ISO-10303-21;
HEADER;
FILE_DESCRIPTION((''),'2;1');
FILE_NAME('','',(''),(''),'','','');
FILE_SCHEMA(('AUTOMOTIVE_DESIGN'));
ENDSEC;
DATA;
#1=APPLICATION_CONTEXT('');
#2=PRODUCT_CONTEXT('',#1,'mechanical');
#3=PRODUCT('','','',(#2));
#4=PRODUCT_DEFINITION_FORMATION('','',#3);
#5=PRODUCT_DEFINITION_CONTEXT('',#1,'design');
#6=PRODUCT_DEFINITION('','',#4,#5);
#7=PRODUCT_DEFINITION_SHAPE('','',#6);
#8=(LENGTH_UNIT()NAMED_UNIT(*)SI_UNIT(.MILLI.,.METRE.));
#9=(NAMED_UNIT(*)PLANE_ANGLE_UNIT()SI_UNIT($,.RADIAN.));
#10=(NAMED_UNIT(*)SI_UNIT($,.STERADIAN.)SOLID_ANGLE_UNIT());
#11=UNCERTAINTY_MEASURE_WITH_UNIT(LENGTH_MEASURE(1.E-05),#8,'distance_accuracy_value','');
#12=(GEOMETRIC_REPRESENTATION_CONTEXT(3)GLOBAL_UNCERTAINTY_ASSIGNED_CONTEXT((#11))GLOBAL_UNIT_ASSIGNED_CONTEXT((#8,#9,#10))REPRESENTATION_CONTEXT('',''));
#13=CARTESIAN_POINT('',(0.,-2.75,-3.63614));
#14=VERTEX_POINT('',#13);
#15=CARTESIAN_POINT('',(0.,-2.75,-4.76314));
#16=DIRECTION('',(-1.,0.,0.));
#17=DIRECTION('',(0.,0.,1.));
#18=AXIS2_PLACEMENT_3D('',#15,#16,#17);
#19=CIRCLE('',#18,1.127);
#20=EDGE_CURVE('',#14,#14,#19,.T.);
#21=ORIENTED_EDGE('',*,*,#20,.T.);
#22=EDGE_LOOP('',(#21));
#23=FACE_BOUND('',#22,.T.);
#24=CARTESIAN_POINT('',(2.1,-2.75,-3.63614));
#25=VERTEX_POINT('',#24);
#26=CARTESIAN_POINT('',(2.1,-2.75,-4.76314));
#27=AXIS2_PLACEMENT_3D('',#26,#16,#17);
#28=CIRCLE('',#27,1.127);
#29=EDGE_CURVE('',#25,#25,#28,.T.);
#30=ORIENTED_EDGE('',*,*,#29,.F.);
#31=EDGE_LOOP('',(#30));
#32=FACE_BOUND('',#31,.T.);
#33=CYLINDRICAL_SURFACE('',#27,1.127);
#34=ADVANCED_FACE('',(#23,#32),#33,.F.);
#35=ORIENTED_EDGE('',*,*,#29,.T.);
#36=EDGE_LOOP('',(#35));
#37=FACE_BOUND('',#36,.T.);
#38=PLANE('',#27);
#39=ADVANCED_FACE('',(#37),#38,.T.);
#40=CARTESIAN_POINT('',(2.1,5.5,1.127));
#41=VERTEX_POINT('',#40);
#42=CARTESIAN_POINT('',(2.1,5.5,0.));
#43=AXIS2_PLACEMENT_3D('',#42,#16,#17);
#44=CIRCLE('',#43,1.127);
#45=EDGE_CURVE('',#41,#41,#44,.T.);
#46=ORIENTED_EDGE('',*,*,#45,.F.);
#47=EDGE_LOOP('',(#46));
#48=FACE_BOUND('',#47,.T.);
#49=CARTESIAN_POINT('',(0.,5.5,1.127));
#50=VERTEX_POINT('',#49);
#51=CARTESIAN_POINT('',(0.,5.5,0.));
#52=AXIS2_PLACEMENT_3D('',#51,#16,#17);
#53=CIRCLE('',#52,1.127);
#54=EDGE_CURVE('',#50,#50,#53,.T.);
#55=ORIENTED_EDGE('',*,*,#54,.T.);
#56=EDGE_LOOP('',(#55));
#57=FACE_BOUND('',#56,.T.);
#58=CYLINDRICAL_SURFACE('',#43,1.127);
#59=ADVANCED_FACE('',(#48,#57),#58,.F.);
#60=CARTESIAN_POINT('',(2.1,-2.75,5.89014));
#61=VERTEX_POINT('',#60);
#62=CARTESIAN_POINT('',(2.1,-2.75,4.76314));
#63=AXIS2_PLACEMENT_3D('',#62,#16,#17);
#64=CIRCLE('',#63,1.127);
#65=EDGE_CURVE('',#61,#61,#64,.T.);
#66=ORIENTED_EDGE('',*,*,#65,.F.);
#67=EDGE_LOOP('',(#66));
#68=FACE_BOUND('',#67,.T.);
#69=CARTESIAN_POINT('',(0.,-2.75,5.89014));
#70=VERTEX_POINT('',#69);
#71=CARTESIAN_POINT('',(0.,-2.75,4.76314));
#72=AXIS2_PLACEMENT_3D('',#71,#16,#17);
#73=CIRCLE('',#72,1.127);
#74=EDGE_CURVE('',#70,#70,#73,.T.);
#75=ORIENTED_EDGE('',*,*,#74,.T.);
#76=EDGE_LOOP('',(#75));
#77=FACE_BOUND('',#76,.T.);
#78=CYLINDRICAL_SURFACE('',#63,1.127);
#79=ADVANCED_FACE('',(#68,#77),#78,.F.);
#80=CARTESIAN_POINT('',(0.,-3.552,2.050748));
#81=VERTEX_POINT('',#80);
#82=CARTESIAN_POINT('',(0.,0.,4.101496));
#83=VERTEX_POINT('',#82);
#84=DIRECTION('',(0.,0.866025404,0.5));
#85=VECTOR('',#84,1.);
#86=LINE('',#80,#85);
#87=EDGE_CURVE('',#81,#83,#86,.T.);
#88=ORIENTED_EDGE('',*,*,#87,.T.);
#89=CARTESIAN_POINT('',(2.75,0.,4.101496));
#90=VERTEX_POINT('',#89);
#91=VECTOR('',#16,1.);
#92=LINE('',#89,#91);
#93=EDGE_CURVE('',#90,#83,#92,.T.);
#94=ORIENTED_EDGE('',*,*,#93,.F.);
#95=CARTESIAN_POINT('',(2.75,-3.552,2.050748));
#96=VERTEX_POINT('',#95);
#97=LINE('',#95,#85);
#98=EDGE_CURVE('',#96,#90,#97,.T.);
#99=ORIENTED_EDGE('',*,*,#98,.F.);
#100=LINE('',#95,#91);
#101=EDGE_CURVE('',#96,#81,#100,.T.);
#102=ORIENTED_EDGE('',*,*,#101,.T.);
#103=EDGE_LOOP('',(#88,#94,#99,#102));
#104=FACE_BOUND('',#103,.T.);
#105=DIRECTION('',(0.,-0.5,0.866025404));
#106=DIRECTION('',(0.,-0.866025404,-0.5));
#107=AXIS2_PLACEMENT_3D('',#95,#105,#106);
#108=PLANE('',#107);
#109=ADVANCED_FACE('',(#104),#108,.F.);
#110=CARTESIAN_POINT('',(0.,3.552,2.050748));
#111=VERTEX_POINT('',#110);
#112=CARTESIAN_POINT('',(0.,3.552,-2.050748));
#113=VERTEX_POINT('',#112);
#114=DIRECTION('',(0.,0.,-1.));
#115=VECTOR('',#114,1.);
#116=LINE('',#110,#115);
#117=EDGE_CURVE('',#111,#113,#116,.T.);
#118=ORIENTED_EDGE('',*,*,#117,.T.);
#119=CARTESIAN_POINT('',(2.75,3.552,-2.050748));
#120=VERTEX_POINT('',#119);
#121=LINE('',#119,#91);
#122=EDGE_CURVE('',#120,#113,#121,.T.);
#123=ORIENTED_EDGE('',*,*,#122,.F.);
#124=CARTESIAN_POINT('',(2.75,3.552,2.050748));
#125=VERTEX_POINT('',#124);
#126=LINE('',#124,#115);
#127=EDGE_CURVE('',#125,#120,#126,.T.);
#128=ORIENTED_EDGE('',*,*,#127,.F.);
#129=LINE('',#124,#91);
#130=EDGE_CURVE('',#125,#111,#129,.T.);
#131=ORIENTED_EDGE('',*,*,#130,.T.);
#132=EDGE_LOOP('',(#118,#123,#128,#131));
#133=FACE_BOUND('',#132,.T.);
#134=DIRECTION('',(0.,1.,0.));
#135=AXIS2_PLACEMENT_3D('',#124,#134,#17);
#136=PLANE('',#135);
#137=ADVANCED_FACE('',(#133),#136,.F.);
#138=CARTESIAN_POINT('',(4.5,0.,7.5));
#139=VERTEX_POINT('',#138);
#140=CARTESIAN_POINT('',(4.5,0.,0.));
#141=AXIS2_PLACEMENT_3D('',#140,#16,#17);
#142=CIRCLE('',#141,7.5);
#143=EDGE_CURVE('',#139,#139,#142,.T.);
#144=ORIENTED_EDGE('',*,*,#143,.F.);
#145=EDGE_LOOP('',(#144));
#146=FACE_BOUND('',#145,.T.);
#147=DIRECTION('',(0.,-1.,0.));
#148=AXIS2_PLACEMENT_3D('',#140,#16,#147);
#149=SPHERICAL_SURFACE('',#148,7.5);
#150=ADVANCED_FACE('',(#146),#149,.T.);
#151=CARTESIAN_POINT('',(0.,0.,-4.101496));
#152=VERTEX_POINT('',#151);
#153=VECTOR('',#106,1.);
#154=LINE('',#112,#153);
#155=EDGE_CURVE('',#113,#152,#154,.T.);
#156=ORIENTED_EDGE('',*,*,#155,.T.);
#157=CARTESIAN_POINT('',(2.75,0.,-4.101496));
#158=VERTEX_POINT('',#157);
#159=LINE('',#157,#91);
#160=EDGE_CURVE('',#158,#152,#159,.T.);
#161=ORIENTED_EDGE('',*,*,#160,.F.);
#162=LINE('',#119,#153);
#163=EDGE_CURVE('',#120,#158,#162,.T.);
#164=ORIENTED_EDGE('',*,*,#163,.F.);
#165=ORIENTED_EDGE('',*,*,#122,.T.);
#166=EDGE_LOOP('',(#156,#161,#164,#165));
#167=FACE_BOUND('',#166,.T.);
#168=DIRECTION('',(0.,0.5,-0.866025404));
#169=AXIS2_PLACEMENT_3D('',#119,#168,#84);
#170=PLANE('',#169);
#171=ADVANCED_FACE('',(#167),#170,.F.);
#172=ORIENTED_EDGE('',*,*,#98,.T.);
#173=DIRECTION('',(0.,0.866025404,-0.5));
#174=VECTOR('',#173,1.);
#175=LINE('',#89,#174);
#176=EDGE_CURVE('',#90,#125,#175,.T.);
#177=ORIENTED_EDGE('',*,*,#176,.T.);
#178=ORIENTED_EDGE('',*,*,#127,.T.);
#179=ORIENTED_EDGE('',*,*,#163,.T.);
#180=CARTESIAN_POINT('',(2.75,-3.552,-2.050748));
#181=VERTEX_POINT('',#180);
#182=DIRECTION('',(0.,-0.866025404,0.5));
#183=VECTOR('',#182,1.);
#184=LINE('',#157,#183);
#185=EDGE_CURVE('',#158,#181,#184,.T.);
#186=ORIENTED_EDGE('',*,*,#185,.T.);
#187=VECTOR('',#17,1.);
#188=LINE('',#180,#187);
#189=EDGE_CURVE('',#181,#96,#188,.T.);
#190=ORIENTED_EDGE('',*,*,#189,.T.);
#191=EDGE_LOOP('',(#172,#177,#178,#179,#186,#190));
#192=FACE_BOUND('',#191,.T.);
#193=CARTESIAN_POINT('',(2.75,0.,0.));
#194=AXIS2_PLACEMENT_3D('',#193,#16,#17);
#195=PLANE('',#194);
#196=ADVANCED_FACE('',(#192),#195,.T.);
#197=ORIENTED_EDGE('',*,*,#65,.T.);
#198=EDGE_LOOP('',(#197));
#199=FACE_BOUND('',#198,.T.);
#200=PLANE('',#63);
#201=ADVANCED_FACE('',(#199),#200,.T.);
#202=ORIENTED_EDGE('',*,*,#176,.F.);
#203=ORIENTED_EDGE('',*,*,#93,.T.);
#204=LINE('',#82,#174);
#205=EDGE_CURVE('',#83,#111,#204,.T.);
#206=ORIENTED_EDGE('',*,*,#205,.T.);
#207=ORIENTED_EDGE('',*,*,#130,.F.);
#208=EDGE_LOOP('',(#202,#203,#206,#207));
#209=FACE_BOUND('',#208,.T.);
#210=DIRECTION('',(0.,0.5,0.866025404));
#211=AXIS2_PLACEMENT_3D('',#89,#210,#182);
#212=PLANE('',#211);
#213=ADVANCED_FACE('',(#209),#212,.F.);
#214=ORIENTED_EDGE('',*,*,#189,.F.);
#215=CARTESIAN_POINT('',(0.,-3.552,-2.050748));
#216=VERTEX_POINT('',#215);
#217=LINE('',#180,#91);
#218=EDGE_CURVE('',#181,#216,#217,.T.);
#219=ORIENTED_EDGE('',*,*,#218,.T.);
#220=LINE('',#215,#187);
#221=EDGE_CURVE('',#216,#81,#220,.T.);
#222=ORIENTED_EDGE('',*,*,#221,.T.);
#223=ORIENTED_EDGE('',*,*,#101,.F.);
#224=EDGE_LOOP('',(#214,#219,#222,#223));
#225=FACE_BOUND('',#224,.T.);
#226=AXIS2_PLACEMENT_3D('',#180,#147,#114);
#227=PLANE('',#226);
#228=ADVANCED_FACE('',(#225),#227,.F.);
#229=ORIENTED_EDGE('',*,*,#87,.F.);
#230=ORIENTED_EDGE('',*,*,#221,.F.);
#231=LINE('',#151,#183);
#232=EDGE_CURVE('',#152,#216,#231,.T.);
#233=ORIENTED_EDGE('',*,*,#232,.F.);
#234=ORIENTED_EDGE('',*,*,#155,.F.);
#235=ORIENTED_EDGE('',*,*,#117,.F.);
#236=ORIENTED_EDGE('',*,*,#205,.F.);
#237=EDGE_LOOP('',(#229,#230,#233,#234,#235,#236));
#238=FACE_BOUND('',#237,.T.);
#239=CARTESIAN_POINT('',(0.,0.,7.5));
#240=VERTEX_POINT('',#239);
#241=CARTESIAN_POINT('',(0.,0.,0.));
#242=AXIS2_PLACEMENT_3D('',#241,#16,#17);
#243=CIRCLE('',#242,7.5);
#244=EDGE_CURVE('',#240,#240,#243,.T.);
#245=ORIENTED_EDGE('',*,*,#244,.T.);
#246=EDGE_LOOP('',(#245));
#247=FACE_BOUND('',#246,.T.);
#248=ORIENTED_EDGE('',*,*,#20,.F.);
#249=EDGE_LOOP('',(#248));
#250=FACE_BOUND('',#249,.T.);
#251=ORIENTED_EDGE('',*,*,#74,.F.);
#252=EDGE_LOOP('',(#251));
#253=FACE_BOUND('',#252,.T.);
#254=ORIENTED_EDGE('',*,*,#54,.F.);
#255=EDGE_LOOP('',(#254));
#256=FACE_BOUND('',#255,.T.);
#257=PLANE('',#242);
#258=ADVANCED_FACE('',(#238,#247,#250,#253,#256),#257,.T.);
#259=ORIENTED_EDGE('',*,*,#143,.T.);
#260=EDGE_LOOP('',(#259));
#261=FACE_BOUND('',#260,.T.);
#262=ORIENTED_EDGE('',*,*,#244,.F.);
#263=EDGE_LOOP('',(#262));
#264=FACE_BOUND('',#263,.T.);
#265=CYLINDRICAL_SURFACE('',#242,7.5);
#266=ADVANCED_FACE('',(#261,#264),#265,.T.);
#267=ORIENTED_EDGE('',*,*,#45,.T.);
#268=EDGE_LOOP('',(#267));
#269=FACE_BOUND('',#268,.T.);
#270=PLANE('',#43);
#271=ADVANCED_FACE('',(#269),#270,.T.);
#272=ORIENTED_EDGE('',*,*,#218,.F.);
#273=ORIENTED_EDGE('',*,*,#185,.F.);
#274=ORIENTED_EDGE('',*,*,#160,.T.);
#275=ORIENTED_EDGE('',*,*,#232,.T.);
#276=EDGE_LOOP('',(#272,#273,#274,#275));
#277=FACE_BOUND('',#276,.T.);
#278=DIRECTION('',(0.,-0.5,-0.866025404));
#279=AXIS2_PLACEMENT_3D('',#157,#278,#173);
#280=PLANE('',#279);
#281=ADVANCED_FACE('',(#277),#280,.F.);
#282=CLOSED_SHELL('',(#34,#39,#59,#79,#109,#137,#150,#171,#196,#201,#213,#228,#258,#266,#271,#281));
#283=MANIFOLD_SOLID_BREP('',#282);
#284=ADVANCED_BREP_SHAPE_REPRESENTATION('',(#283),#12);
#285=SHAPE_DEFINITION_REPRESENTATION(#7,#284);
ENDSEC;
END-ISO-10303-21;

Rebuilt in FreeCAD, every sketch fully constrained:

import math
import FreeCAD as App
import Part
import Sketcher
from FreeCAD import Vector
Q = App.Units.Quantity

doc = App.newDocument("Part")
body = doc.addObject("PartDesign::Body", "Body")

sketch1 = doc.addObject("Sketcher::SketchObject", "Sketch")
body.addObject(sketch1)
sketch1.AttachmentSupport = (doc.XY_Plane, [""])
sketch1.MapMode = "FlatFace"
sketch1.addGeometry(Part.LineSegment(Vector(12, 0, 0), Vector(0, 0, 0)), False)
sketch1.addGeometry(Part.LineSegment(Vector(0, 0, 0), Vector(0, -7.5, 0)), False)
sketch1.addGeometry(Part.LineSegment(Vector(0, -7.5, 0), Vector(4.5, -7.5, 0)), False)
sketch1.addGeometry(Part.ArcOfCircle(Part.Circle(Vector(4.5, 0, 0), Vector(0, 0, 1), 7.5), math.radians(-90), math.radians(0)), False)
sketch1.addConstraint(Sketcher.Constraint("Coincident", 0, 2, 1, 1))
sketch1.addConstraint(Sketcher.Constraint("Coincident", 1, 2, 2, 1))
sketch1.addConstraint(Sketcher.Constraint("Tangent", 2, 2, 3, 1))
sketch1.addConstraint(Sketcher.Constraint("Coincident", 3, 2, 0, 1))
sketch1.addConstraint(Sketcher.Constraint("Horizontal", 0))
sketch1.addConstraint(Sketcher.Constraint("Vertical", 1))
sketch1.addConstraint(Sketcher.Constraint("Horizontal", 2))
sketch1.addConstraint(Sketcher.Constraint("Coincident", 0, 2, -1, 1))
sketch1.addConstraint(Sketcher.Constraint("PointOnObject", 3, 3, -1))
sketch1.addConstraint(Sketcher.Constraint("Radius", 3, 7.5))
sketch1.addConstraint(Sketcher.Constraint("DistanceX", 0, 2, 0, 1, 12.0))
revolution = doc.addObject("PartDesign::Revolution", "Revolution")
body.addObject(revolution)
revolution.Profile = sketch1
revolution.ReferenceAxis = (sketch1, ["H_Axis"])
revolution.Angle = 360

sketch2 = doc.addObject("Sketcher::SketchObject", "Sketch001")
body.addObject(sketch2)
sketch2.AttachmentSupport = (doc.YZ_Plane, [""])
sketch2.MapMode = "FlatFace"
sketch2.addGeometry(Part.LineSegment(Vector(3.552, 2.050748, 0), Vector(3.552, -2.050748, 0)), False)
sketch2.addGeometry(Part.LineSegment(Vector(3.552, -2.050748, 0), Vector(0, -4.101496, 0)), False)
sketch2.addGeometry(Part.LineSegment(Vector(0, -4.101496, 0), Vector(-3.552, -2.050748, 0)), False)
sketch2.addGeometry(Part.LineSegment(Vector(-3.552, -2.050748, 0), Vector(-3.552, 2.050748, 0)), False)
sketch2.addGeometry(Part.LineSegment(Vector(-3.552, 2.050748, 0), Vector(0, 4.101496, 0)), False)
sketch2.addGeometry(Part.LineSegment(Vector(0, 4.101496, 0), Vector(3.552, 2.050748, 0)), False)
sketch2.addConstraint(Sketcher.Constraint("Coincident", 0, 2, 1, 1))
sketch2.addConstraint(Sketcher.Constraint("Coincident", 1, 2, 2, 1))
sketch2.addConstraint(Sketcher.Constraint("Coincident", 2, 2, 3, 1))
sketch2.addConstraint(Sketcher.Constraint("Coincident", 3, 2, 4, 1))
sketch2.addConstraint(Sketcher.Constraint("Coincident", 4, 2, 5, 1))
sketch2.addConstraint(Sketcher.Constraint("Coincident", 5, 2, 0, 1))
sketch2.addConstraint(Sketcher.Constraint("Vertical", 0))
sketch2.addConstraint(Sketcher.Constraint("Vertical", 3))
sketch2.addConstraint(Sketcher.Constraint("Symmetric", 0, 2, 3, 2, -1, 1))
sketch2.addConstraint(Sketcher.Constraint("Symmetric", 1, 2, 4, 2, -1, 1))
sketch2.addConstraint(Sketcher.Constraint("PointOnObject", 1, 2, -2))
sketch2.addConstraint(Sketcher.Constraint("Parallel", 2, 5))
sketch2.addConstraint(Sketcher.Constraint("Horizontal", 0, 2, 2, 2))
sketch2.addConstraint(Sketcher.Constraint("Angle", 1, Q("-150 deg")))
sketch2.addConstraint(Sketcher.Constraint("DistanceX", -1, 1, 0, 2, 3.552))
sketch2.addConstraint(Sketcher.Constraint("DistanceY", 0, 2, 0, 1, 4.101496))
pocket1 = doc.addObject("PartDesign::Pocket", "Pocket")
body.addObject(pocket1)
pocket1.Profile = sketch2
pocket1.Length = 2.75
pocket1.Reversed = True

sketch3 = doc.addObject("Sketcher::SketchObject", "Sketch002")
body.addObject(sketch3)
sketch3.AttachmentSupport = (doc.YZ_Plane, [""])
sketch3.MapMode = "FlatFace"
sketch3.addGeometry(Part.Circle(Vector(-2.75, -4.76314, 0), Vector(0, 0, 1), 1.127), False)
sketch3.addGeometry(Part.Circle(Vector(5.5, 0, 0), Vector(0, 0, 1), 1.127), False)
sketch3.addGeometry(Part.Circle(Vector(-2.75, 4.76314, 0), Vector(0, 0, 1), 1.127), False)
sketch3.addConstraint(Sketcher.Constraint("Equal", 0, 1))
sketch3.addConstraint(Sketcher.Constraint("Equal", 1, 2))
sketch3.addConstraint(Sketcher.Constraint("Symmetric", 0, 3, 2, 3, -1))
sketch3.addConstraint(Sketcher.Constraint("PointOnObject", 1, 3, -1))
sketch3.addConstraint(Sketcher.Constraint("Diameter", 0, 2.254))
sketch3.addConstraint(Sketcher.Constraint("DistanceX", -1, 1, 1, 3, 5.5))
sketch3.addConstraint(Sketcher.Constraint("DistanceX", 0, 3, -1, 1, 2.75))
sketch3.addConstraint(Sketcher.Constraint("DistanceY", 0, 3, -1, 1, 4.76314))
pocket2 = doc.addObject("PartDesign::Pocket", "Pocket001")
body.addObject(pocket2)
pocket2.Profile = sketch3
pocket2.Length = 2.1
pocket2.Reversed = True

doc.recompute()
